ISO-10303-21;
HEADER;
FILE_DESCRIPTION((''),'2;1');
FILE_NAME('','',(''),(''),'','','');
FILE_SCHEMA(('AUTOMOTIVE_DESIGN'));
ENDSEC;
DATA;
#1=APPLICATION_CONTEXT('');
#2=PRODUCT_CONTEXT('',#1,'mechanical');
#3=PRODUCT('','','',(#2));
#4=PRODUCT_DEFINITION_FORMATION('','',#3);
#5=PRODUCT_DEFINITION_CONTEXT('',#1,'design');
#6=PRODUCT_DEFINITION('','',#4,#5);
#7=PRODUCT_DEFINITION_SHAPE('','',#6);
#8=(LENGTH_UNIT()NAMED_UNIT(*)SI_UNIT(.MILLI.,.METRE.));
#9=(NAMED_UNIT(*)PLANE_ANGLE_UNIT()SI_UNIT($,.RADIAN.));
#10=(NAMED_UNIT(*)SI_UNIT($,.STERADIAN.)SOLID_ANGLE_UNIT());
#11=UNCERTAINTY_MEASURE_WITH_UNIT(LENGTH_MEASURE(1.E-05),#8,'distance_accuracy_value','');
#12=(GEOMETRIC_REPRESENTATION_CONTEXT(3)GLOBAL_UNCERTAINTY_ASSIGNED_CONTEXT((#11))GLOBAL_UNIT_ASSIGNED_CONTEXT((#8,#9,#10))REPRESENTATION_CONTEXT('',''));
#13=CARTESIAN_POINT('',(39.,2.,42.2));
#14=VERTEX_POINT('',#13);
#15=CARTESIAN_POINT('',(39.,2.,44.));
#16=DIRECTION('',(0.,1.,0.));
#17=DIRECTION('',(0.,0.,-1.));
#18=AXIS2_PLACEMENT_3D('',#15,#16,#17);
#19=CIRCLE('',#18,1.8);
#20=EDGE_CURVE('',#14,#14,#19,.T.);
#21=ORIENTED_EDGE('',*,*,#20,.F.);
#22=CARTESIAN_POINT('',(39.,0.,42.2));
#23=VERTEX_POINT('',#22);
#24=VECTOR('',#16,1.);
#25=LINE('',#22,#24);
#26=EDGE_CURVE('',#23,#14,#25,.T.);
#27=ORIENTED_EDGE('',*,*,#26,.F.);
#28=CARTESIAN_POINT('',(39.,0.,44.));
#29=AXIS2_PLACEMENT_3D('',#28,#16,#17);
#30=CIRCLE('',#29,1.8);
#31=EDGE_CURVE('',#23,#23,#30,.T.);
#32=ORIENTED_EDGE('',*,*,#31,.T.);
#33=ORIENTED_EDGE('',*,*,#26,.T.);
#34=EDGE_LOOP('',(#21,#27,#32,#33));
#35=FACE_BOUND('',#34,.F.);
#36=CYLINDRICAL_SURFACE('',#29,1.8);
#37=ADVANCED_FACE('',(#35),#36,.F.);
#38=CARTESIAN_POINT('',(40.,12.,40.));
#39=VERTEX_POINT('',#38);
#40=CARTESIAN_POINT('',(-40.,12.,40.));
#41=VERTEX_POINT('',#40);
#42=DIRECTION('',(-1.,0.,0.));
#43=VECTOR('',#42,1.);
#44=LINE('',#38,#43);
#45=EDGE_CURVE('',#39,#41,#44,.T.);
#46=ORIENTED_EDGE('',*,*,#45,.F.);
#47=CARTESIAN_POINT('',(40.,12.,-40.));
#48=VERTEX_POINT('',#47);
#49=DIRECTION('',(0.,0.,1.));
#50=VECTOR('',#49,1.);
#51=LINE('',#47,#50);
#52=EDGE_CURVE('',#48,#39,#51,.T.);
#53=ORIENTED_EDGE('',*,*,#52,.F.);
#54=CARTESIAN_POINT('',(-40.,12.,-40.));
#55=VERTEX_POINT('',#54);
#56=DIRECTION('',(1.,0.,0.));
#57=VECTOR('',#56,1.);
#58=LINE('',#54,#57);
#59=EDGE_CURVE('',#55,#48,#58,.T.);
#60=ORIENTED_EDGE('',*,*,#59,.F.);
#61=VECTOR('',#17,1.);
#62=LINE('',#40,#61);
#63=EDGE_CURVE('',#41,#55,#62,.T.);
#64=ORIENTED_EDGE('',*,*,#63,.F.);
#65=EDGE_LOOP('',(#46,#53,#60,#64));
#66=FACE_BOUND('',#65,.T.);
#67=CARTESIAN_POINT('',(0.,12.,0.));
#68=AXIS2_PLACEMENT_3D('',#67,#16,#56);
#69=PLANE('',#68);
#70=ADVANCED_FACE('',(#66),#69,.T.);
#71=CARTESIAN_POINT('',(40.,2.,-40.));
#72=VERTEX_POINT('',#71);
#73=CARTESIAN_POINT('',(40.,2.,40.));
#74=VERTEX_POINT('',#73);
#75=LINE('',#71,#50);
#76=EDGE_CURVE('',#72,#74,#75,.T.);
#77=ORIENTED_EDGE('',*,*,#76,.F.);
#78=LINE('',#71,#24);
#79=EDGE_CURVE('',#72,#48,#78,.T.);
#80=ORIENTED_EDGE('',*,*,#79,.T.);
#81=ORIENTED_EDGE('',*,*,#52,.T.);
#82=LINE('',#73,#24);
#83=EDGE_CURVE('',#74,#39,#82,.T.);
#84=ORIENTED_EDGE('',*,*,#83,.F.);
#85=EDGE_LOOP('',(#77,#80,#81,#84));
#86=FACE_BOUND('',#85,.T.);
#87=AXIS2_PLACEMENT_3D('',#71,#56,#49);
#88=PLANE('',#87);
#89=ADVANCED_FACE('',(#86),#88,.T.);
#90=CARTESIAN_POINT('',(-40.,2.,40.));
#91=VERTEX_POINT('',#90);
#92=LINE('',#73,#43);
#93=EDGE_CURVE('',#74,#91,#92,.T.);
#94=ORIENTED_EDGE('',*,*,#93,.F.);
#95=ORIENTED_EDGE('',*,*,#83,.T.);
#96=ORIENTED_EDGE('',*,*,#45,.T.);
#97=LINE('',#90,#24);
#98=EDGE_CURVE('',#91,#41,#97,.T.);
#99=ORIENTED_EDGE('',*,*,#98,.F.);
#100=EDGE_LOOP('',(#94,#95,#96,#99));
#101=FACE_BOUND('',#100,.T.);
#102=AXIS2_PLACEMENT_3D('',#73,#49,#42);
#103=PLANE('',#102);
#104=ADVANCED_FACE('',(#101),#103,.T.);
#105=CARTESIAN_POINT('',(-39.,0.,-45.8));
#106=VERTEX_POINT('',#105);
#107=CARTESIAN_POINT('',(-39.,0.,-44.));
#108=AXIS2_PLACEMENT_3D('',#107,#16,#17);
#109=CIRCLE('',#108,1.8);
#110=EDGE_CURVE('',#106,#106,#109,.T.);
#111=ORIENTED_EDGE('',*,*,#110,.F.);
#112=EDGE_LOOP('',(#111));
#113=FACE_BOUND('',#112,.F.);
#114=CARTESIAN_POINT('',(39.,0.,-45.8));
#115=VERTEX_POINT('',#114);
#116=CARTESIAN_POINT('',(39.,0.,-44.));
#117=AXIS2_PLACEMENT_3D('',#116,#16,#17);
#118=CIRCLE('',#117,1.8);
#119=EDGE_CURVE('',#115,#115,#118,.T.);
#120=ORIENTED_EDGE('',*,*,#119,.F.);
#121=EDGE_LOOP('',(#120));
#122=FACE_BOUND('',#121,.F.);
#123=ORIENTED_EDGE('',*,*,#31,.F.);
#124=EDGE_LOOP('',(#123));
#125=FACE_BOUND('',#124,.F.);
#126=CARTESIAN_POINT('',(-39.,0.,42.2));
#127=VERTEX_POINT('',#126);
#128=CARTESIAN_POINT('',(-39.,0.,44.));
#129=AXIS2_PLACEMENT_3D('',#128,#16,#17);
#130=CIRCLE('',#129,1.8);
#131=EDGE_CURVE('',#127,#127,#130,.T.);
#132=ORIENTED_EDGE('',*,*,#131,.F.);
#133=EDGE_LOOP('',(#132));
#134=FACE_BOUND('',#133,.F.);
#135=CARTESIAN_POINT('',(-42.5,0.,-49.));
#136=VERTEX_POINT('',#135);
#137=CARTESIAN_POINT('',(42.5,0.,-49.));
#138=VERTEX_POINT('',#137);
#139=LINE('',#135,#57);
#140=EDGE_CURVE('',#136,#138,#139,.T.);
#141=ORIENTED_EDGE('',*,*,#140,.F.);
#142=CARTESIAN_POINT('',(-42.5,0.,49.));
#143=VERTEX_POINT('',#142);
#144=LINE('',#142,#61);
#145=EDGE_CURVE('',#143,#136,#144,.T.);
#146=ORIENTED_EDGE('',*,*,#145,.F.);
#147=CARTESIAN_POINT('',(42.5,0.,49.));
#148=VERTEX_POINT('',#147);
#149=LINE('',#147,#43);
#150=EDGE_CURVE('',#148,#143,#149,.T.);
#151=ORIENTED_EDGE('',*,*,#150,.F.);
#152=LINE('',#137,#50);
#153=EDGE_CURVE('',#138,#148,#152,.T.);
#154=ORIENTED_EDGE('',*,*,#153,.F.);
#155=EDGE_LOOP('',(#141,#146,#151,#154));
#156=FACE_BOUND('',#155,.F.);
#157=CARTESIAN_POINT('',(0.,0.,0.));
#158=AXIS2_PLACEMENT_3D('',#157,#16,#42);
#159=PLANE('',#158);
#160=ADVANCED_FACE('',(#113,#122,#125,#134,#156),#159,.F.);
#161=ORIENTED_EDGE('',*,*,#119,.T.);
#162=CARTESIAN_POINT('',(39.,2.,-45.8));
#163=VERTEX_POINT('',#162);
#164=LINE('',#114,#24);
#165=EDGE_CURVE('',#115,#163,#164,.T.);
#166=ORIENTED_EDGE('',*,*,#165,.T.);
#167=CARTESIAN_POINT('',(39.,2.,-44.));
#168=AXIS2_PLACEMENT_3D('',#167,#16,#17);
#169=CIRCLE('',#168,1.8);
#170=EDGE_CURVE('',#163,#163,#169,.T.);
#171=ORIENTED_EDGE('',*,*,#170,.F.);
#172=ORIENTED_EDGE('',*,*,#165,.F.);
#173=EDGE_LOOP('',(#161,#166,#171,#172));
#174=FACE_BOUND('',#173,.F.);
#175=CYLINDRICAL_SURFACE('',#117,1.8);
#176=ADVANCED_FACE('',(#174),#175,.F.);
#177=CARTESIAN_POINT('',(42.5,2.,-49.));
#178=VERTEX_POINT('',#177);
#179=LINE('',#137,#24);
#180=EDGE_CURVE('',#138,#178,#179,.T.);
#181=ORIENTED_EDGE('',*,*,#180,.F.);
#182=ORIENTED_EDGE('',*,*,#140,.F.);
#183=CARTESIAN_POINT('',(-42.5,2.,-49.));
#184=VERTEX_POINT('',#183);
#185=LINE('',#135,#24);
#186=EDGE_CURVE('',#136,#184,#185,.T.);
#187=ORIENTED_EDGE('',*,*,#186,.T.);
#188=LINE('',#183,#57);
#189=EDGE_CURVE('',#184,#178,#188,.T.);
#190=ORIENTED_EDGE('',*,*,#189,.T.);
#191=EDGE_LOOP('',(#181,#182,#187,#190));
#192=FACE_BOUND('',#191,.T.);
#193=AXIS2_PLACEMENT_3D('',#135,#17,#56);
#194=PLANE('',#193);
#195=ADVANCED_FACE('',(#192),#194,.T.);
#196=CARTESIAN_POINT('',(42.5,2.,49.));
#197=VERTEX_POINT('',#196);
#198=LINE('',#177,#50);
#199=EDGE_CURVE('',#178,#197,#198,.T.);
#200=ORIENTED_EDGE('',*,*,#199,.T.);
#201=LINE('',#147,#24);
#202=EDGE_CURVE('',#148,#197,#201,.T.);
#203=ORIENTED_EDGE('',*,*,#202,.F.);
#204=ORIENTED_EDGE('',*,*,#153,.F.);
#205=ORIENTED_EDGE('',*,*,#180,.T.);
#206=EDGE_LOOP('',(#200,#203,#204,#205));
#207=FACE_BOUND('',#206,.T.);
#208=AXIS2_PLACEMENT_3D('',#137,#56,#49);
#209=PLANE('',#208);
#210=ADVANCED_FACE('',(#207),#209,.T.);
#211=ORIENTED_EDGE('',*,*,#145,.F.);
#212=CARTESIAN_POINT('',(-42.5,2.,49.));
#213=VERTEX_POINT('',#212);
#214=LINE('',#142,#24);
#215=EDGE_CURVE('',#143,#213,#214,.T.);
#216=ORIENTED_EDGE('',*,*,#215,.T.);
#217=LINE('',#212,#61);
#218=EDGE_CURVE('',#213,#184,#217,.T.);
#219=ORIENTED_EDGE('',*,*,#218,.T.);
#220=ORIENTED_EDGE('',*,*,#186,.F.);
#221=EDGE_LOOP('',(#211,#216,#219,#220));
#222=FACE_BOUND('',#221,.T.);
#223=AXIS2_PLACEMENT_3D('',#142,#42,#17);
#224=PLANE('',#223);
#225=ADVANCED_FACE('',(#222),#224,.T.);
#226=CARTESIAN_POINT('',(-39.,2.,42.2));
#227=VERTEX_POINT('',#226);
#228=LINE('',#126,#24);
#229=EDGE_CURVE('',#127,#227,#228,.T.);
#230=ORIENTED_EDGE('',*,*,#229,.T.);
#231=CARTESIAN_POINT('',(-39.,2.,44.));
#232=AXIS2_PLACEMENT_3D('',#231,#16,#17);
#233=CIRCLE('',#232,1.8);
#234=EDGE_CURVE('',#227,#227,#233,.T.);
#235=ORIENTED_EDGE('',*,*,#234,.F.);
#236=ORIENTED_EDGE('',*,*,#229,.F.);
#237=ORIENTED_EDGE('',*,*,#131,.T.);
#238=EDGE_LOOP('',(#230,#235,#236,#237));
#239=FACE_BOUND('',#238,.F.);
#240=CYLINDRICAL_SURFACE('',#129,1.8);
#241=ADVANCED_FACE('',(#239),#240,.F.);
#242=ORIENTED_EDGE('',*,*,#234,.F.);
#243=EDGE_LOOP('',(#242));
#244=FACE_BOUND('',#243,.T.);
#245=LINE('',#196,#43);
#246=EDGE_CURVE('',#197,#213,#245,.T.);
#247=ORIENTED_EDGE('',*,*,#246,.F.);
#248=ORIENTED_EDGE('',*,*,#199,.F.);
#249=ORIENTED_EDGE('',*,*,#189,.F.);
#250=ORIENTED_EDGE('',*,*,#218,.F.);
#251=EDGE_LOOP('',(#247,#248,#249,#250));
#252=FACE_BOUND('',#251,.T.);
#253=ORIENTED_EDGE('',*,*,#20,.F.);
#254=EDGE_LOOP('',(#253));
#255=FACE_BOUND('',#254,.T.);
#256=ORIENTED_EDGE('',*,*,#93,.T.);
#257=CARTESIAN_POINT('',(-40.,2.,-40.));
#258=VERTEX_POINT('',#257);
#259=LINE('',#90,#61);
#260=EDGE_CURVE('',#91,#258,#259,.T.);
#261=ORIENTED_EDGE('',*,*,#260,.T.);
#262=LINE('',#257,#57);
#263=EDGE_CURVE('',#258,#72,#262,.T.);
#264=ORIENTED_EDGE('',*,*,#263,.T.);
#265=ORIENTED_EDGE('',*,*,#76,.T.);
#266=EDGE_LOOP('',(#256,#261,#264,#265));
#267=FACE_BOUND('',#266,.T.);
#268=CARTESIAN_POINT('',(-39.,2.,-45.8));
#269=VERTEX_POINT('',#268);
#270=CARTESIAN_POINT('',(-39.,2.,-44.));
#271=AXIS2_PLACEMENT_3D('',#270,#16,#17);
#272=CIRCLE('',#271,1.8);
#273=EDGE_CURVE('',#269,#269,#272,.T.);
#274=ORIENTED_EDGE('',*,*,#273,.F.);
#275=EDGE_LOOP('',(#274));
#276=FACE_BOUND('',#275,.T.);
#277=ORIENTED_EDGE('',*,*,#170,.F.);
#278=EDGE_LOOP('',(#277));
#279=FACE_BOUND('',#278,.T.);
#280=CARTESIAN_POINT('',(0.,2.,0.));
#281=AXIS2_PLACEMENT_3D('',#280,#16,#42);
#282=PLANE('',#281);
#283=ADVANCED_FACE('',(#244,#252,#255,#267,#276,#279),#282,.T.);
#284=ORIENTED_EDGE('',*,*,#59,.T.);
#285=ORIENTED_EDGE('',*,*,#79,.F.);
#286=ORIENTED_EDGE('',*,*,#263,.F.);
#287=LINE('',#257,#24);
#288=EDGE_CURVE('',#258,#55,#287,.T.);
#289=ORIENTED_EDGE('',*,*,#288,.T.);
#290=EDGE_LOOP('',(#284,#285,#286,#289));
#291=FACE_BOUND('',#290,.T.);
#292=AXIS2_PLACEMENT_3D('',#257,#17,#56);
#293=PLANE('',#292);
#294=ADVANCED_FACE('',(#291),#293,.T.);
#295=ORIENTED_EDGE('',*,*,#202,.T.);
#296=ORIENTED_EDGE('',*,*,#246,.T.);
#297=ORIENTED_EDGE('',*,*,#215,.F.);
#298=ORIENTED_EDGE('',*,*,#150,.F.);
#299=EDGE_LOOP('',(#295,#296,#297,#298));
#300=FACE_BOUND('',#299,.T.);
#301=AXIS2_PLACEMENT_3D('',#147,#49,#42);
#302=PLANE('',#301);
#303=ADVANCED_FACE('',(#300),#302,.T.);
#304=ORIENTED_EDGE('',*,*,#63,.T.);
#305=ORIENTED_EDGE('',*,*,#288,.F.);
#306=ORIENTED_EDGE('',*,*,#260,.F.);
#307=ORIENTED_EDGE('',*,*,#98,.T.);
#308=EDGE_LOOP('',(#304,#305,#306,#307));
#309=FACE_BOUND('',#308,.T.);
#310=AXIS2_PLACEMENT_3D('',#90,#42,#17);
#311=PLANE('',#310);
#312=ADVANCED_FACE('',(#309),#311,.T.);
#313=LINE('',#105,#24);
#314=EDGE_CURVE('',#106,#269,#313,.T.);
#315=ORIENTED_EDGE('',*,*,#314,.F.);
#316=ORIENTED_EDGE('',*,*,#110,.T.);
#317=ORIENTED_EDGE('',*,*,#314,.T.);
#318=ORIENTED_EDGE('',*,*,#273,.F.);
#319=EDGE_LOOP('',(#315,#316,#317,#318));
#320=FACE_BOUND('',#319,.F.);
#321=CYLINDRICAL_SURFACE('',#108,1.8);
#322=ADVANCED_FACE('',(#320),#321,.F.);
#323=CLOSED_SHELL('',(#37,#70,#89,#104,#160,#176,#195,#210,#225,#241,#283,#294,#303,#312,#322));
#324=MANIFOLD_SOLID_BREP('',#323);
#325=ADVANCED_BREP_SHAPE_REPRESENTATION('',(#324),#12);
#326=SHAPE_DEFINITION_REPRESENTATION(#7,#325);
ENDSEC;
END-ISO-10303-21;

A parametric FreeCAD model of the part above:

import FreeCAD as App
import Part
import Sketcher
from FreeCAD import Vector


def add_polygon(sketch, points):
    """Adds a closed chain of lines whose ends are joined by coincident constraints."""
    first, n = sketch.GeometryCount, len(points)
    for a, b in zip(points, points[1:] + points[:1]):
        sketch.addGeometry(Part.LineSegment(App.Vector(*a, 0), App.Vector(*b, 0)), False)
    for i in range(n):
        sketch.addConstraint(Sketcher.Constraint("Coincident", first + i, 2, first + (i + 1) % n, 1))

doc = App.newDocument("Part")
body = doc.addObject("PartDesign::Body", "Body")

# Sketch on XZ plane
sketch1 = body.newObject("Sketcher::SketchObject", "Sketch")
sketch1.AttachmentSupport = (doc.getObject("XZ_Plane"), [""])
sketch1.MapMode = "FlatFace"
add_polygon(sketch1, [(-42, 49), (42, 49), (42, -49), (-42, -49)])  # lines 0-3
sketch1.addConstraint([
    Sketcher.Constraint("Horizontal", 0),
    Sketcher.Constraint("Vertical", 1),
    Sketcher.Constraint("Horizontal", 2),
    Sketcher.Constraint("Vertical", 3),
    Sketcher.Constraint("Symmetric", 0, 2, 2, 2, -1, 1),
    Sketcher.Constraint("DistanceX", 0, 1, 0, 2, 85.0),
    Sketcher.Constraint("DistanceY", 1, 2, 1, 1, 98.0),
])
pad1 = body.newObject("PartDesign::Pad", "Pad")
pad1.Profile = sketch1
pad1.Length = 2
pad1.Reversed = True

# Sketch on XZ plane
sketch2 = body.newObject("Sketcher::SketchObject", "Sketch001")
sketch2.AttachmentSupport = (doc.getObject("XZ_Plane"), [""])
sketch2.MapMode = "FlatFace"
sketch2.addGeometry([
    Part.Circle(Vector(39, 44, 0), Vector(0, 0, 1), 1.8),
    Part.Circle(Vector(39, -44, 0), Vector(0, 0, 1), 1.8),
    Part.Circle(Vector(-39, -44, 0), Vector(0, 0, 1), 1.8),
    Part.Circle(Vector(-39, 44, 0), Vector(0, 0, 1), 1.8),
], False)
sketch2.addConstraint([
    Sketcher.Constraint("Equal", 0, 1),
    Sketcher.Constraint("Equal", 1, 2),
    Sketcher.Constraint("Equal", 2, 3),
    Sketcher.Constraint("Symmetric", 0, 3, 2, 3, -1, 1),
    Sketcher.Constraint("Symmetric", 1, 3, 3, 3, -1, 1),
    Sketcher.Constraint("Symmetric", 1, 3, 2, 3, -2),
    Sketcher.Constraint("Diameter", 0, 3.6),
    Sketcher.Constraint("DistanceX", -1, 1, 0, 3, 39.0),
    Sketcher.Constraint("DistanceY", -1, 1, 0, 3, 44.0),
])
doc.recompute()
hole = body.newObject("PartDesign::Hole", "Hole")
hole.Profile = sketch2
hole.ThreadType = "None"
hole.Diameter = 3.6
hole.DepthType = "ThroughAll"

# Sketch on XZ plane
sketch3 = body.newObject("Sketcher::SketchObject", "Sketch002")
sketch3.AttachmentSupport = (doc.getObject("XZ_Plane"), [""])
sketch3.MapMode = "FlatFace"
sketch3.AttachmentOffset = App.Placement(Vector(0, 0, -2), App.Rotation())
add_polygon(sketch3, [(-40, 40), (40, 40), (40, -40), (-40, -40)])  # lines 0-3
sketch3.addConstraint([
    Sketcher.Constraint("Horizontal", 0),
    Sketcher.Constraint("Vertical", 1),
    Sketcher.Constraint("Horizontal", 2),
    Sketcher.Constraint("Vertical", 3),
    Sketcher.Constraint("Symmetric", 0, 2, 2, 2, -1, 1),
    Sketcher.Constraint("Equal", 2, 1),
    Sketcher.Constraint("DistanceX", 0, 1, 0, 2, 80.0),
])
pad2 = body.newObject("PartDesign::Pad", "Pad001")
pad2.Profile = sketch3
pad2.Length = 10
pad2.Reversed = True

doc.recompute()
